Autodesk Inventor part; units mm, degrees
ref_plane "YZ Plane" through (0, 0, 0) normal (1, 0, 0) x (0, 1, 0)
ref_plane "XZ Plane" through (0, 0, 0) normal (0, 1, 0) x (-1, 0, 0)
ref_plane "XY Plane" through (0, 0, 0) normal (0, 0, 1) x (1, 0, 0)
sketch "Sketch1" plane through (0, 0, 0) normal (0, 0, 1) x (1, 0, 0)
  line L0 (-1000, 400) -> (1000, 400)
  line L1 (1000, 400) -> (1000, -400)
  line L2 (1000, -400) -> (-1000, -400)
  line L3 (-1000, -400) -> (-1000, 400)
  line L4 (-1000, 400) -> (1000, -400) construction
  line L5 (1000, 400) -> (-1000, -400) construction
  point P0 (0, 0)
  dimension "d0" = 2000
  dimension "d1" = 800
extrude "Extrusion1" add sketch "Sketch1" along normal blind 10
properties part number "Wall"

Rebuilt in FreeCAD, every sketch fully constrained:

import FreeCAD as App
import Part
import Sketcher

V = App.Vector
Q = App.Units.Quantity


def add_polygon(sketch, points):
    """Adds a closed chain of lines whose ends are joined by coincident constraints."""
    first, n = sketch.GeometryCount, len(points)
    for a, b in zip(points, points[1:] + points[:1]):
        sketch.addGeometry(Part.LineSegment(App.Vector(*a, 0), App.Vector(*b, 0)), False)
    for i in range(n):
        sketch.addConstraint(Sketcher.Constraint("Coincident", first + i, 2, first + (i + 1) % n, 1))

doc = App.newDocument("Part")
params = doc.addObject("Spreadsheet::Sheet", "Params")
for row, (alias, value) in enumerate([
    ("sketch1_width", "2000 mm"),
    ("sketch1_height", "800 mm"),
    ("pad1_length", "10 mm"),
], start=1):
    params.set(f"A{row}", alias)
    params.set(f"B{row}", "=" + value)
    params.setAlias(f"B{row}", alias)

body = doc.addObject("PartDesign::Body", "Body")

# Sketch on XY plane
sketch1 = body.newObject("Sketcher::SketchObject", "Sketch")
sketch1.AttachmentSupport = (doc.getObject("XY_Plane"), [""])
sketch1.MapMode = "FlatFace"
add_polygon(sketch1, [(1000, 400), (-1000, 400), (-1000, -400), (1000, -400)])  # lines 0-3
sketch1.addConstraint([
    Sketcher.Constraint("Horizontal", 0),
    Sketcher.Constraint("Vertical", 1),
    Sketcher.Constraint("Horizontal", 2),
    Sketcher.Constraint("Vertical", 3),
    Sketcher.Constraint("Symmetric", 0, 2, 2, 2, -1, 1),
    Sketcher.Constraint("DistanceX", 0, 2, 0, 1, Q("2000 mm")),
    Sketcher.Constraint("DistanceY", 1, 2, 1, 1, Q("800 mm")),
])
sketch1.setExpression("Constraints[9]", "Params.sketch1_width")
sketch1.setExpression("Constraints[10]", "Params.sketch1_height")
pad1 = body.newObject("PartDesign::Pad", "Pad")
pad1.Profile = sketch1
pad1.setExpression("Length", "Params.pad1_length")

doc.recompute()
